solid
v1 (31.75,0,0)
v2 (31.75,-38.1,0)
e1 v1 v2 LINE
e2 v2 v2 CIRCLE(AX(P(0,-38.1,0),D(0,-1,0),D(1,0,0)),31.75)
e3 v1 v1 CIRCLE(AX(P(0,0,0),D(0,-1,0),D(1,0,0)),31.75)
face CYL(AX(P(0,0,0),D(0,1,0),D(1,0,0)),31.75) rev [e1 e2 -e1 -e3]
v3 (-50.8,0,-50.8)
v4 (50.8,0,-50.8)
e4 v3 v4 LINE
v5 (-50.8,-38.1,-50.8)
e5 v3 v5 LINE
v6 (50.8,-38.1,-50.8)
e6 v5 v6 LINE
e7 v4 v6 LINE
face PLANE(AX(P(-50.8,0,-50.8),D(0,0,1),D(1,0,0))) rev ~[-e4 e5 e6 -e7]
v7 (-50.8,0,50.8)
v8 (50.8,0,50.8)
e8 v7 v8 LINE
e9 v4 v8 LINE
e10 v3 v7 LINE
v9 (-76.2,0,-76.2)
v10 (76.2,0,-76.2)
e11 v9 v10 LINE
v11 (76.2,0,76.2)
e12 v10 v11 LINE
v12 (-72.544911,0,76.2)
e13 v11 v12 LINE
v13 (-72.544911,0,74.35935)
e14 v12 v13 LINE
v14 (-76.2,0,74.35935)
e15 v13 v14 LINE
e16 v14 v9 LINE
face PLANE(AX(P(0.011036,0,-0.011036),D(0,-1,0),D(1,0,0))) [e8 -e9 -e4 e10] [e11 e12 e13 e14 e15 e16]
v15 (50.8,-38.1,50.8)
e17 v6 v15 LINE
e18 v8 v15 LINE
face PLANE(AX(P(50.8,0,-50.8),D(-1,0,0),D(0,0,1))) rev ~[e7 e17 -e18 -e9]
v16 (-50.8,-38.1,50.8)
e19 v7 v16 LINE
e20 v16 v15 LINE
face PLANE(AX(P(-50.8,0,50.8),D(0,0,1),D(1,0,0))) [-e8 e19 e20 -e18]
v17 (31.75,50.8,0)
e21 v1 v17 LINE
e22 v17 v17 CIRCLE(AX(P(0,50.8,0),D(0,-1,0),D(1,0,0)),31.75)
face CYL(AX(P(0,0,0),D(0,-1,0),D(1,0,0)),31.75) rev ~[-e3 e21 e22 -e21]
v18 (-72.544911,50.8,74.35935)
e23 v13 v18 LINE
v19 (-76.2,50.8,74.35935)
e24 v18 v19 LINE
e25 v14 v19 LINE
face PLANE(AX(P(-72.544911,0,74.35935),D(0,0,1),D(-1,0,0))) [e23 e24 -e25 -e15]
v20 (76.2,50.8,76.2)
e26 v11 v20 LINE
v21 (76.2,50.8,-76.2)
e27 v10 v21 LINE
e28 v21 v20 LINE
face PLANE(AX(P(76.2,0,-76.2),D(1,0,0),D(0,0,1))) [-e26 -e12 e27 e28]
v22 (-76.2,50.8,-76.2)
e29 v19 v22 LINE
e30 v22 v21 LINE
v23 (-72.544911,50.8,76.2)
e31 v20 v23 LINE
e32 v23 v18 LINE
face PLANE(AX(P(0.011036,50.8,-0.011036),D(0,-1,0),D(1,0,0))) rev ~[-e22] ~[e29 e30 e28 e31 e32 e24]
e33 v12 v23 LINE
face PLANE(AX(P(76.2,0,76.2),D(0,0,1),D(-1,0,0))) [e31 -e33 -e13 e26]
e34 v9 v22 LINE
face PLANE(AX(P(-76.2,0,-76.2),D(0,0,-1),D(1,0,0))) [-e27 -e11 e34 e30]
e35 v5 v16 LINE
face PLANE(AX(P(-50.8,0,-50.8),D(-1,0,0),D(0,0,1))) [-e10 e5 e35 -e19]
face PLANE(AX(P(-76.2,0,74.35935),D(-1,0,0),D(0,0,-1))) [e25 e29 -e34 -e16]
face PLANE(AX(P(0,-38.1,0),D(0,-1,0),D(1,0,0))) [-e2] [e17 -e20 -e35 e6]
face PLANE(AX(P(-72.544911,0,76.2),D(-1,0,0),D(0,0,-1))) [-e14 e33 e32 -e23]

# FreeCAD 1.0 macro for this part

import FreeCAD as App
import Part
import Sketcher

V = App.Vector
Q = App.Units.Quantity

doc = App.newDocument("Part")
body = doc.addObject("PartDesign::Body", "Body")

# Sketch on XZ plane
sketch1 = body.newObject("Sketcher::SketchObject", "Sketch")
sketch1.AttachmentSupport = (doc.getObject("XZ_Plane"), [""])
sketch1.MapMode = "FlatFace"
sketch1.addGeometry(Part.LineSegment(V(-51, 51, 0), V(-51, -51, 0)), False)
sketch1.addGeometry(Part.LineSegment(V(-51, -51, 0), V(51, -51, 0)), False)
sketch1.addGeometry(Part.LineSegment(V(51, -51, 0), V(51, 51, 0)), False)
sketch1.addGeometry(Part.LineSegment(V(51, 51, 0), V(-51, 51, 0)), False)
sketch1.addGeometry(Part.Circle(V(0, 0, 0), V(0, 0, 1), 32), False)
sketch1.addConstraint(Sketcher.Constraint("Coincident", 0, 2, 1, 1))
sketch1.addConstraint(Sketcher.Constraint("Coincident", 1, 2, 2, 1))
sketch1.addConstraint(Sketcher.Constraint("Coincident", 2, 2, 3, 1))
sketch1.addConstraint(Sketcher.Constraint("Coincident", 3, 2, 0, 1))
sketch1.addConstraint(Sketcher.Constraint("Vertical", 0))
sketch1.addConstraint(Sketcher.Constraint("Horizontal", 1))
sketch1.addConstraint(Sketcher.Constraint("Vertical", 2))
sketch1.addConstraint(Sketcher.Constraint("Horizontal", 3))
sketch1.addConstraint(Sketcher.Constraint("Coincident", 4, 3, -1, 1))
sketch1.addConstraint(Sketcher.Constraint("Symmetric", 0, 2, 2, 2, -1, 1))
sketch1.addConstraint(Sketcher.Constraint("Equal", 3, 0))
sketch1.addConstraint(Sketcher.Constraint("Diameter", 4, Q("2.5 in")))
sketch1.addConstraint(Sketcher.Constraint("DistanceX", 1, 1, 1, 2, Q("4 in")))
pad1 = body.newObject("PartDesign::Pad", "Pad")
pad1.Profile = sketch1
pad1.Length = Q("1.5 in")

# Sketch on XZ plane
sketch2 = body.newObject("Sketcher::SketchObject", "Sketch001")
sketch2.AttachmentSupport = (doc.getObject("XZ_Plane"), [""])
sketch2.MapMode = "FlatFace"
sketch2.addGeometry(Part.LineSegment(V(-72.5, 76.2, 0), V(-72.5, 74.4, 0)), False)
sketch2.addGeometry(Part.LineSegment(V(-72.5, 74.4, 0), V(-76.2, 74.4, 0)), False)
sketch2.addGeometry(Part.LineSegment(V(-76.2, 74.4, 0), V(-76.2, -76.2, 0)), False)
sketch2.addGeometry(Part.LineSegment(V(-76.2, -76.2, 0), V(76.2, -76.2, 0)), False)
sketch2.addGeometry(Part.LineSegment(V(76.2, -76.2, 0), V(76.2, 76.2, 0)), False)
sketch2.addGeometry(Part.LineSegment(V(76.2, 76.2, 0), V(-72.5, 76.2, 0)), False)
sketch2.addGeometry(Part.Circle(V(0, 0, 0), V(0, 0, 1), 31.8), False)
sketch2.addConstraint(Sketcher.Constraint("Coincident", 0, 2, 1, 1))
sketch2.addConstraint(Sketcher.Constraint("Coincident", 1, 2, 2, 1))
sketch2.addConstraint(Sketcher.Constraint("Coincident", 2, 2, 3, 1))
sketch2.addConstraint(Sketcher.Constraint("Coincident", 3, 2, 4, 1))
sketch2.addConstraint(Sketcher.Constraint("Coincident", 4, 2, 5, 1))
sketch2.addConstraint(Sketcher.Constraint("Coincident", 5, 2, 0, 1))
sketch2.addConstraint(Sketcher.Constraint("Vertical", 0))
sketch2.addConstraint(Sketcher.Constraint("Horizontal", 1))
sketch2.addConstraint(Sketcher.Constraint("Vertical", 2))
sketch2.addConstraint(Sketcher.Constraint("Horizontal", 3))
sketch2.addConstraint(Sketcher.Constraint("Vertical", 4))
sketch2.addConstraint(Sketcher.Constraint("Horizontal", 5))
sketch2.addConstraint(Sketcher.Constraint("Coincident", 6, 3, -1, 1))
sketch2.addConstraint(Sketcher.Constraint("Symmetric", 2, 2, 4, 2, -1, 1))
sketch2.addConstraint(Sketcher.Constraint("Equal", 3, 4))
sketch2.addConstraint(Sketcher.Constraint("Diameter", 6, Q("2.5 in")))
sketch2.addConstraint(Sketcher.Constraint("DistanceX", 3, 1, 3, 2, Q("6 in")))
sketch2.addConstraint(Sketcher.Constraint("DistanceX", 1, 2, 1, 1, 3.655089))
sketch2.addConstraint(Sketcher.Constraint("DistanceY", 0, 2, 0, 1, 1.84065))
pad2 = body.newObject("PartDesign::Pad", "Pad001")
pad2.Profile = sketch2
pad2.Length = Q("2 in")
pad2.Reversed = True

doc.recompute()
